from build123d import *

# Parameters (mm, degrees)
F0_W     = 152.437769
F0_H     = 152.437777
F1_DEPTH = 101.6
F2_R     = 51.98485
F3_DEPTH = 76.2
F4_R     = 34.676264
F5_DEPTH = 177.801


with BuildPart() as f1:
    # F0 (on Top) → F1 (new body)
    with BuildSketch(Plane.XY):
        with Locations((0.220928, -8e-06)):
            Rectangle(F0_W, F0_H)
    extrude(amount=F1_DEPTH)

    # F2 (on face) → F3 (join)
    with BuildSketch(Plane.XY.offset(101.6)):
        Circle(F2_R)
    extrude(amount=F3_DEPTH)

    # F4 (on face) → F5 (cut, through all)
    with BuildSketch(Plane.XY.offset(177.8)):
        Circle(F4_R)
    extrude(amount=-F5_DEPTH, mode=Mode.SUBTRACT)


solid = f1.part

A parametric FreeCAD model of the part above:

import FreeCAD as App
import Part
import Sketcher
Q = App.Units.Quantity


def add_polygon(sketch, points):
    """Adds a closed chain of lines whose ends are joined by coincident constraints."""
    first, n = sketch.GeometryCount, len(points)
    for a, b in zip(points, points[1:] + points[:1]):
        sketch.addGeometry(Part.LineSegment(App.Vector(*a, 0), App.Vector(*b, 0)), False)
    for i in range(n):
        sketch.addConstraint(Sketcher.Constraint("Coincident", first + i, 2, first + (i + 1) % n, 1))

doc = App.newDocument("Part")
body = doc.addObject("PartDesign::Body", "Body")

# Sketch on XY plane
sketch1 = doc.addObject("Sketcher::SketchObject", "Sketch")
body.addObject(sketch1)
sketch1.AttachmentSupport = (doc.XY_Plane, [""])
sketch1.MapMode = "FlatFace"
add_polygon(sketch1, [(-75.997957, 76.21888), (-75.997957, -76.218896), (76.439813, -76.218896), (76.439813, 76.21888)])  # lines 0-3
sketch1.addConstraint(Sketcher.Constraint("Vertical", 0))
sketch1.addConstraint(Sketcher.Constraint("Horizontal", 1))
sketch1.addConstraint(Sketcher.Constraint("Vertical", 2))
sketch1.addConstraint(Sketcher.Constraint("Horizontal", 3))
sketch1.addConstraint(Sketcher.Constraint("DistanceX", 1, 1, 1, 2, 152.437769))
sketch1.addConstraint(Sketcher.Constraint("DistanceY", 0, 2, 0, 1, 152.437777))
sketch1.addConstraint(Sketcher.Constraint("DistanceY", -1, 1, 2, 2, 76.21888))
sketch1.addConstraint(Sketcher.Constraint("DistanceX", 0, 2, -1, 1, 75.997957))
pad1 = doc.addObject("PartDesign::Pad", "Pad")
body.addObject(pad1)
pad1.Profile = sketch1
pad1.Length = Q("4 in")

# Sketch on XY plane
sketch2 = doc.addObject("Sketcher::SketchObject", "Sketch001")
body.addObject(sketch2)
sketch2.AttachmentSupport = (doc.XY_Plane, [""])
sketch2.MapMode = "FlatFace"
sketch2.AttachmentOffset = App.Placement(App.Vector(0, 0, 4 * 25.4), App.Rotation())
sketch2.addGeometry(Part.Circle(App.Vector(0, 0, 0), App.Vector(0, 0, 1), 51.98485), False)
sketch2.addConstraint(Sketcher.Constraint("Coincident", 0, 3, -1, 1))
sketch2.addConstraint(Sketcher.Constraint("Diameter", 0, 103.9697))
pad2 = doc.addObject("PartDesign::Pad", "Pad001")
body.addObject(pad2)
pad2.Profile = sketch2
pad2.Length = Q("3 in")

# Sketch on XY plane
sketch3 = doc.addObject("Sketcher::SketchObject", "Sketch002")
body.addObject(sketch3)
sketch3.AttachmentSupport = (doc.XY_Plane, [""])
sketch3.MapMode = "FlatFace"
sketch3.AttachmentOffset = App.Placement(App.Vector(0, 0, 7 * 25.4), App.Rotation())
sketch3.addGeometry(Part.Circle(App.Vector(0, 0, 0), App.Vector(0, 0, 1), 34.676264), False)
sketch3.addConstraint(Sketcher.Constraint("Coincident", 0, 3, -1, 1))
sketch3.addConstraint(Sketcher.Constraint("Diameter", 0, 69.352528))
pocket1 = doc.addObject("PartDesign::Pocket", "Pocket")
body.addObject(pocket1)
pocket1.Profile = sketch3
pocket1.Type = "ThroughAll"

doc.recompute()
